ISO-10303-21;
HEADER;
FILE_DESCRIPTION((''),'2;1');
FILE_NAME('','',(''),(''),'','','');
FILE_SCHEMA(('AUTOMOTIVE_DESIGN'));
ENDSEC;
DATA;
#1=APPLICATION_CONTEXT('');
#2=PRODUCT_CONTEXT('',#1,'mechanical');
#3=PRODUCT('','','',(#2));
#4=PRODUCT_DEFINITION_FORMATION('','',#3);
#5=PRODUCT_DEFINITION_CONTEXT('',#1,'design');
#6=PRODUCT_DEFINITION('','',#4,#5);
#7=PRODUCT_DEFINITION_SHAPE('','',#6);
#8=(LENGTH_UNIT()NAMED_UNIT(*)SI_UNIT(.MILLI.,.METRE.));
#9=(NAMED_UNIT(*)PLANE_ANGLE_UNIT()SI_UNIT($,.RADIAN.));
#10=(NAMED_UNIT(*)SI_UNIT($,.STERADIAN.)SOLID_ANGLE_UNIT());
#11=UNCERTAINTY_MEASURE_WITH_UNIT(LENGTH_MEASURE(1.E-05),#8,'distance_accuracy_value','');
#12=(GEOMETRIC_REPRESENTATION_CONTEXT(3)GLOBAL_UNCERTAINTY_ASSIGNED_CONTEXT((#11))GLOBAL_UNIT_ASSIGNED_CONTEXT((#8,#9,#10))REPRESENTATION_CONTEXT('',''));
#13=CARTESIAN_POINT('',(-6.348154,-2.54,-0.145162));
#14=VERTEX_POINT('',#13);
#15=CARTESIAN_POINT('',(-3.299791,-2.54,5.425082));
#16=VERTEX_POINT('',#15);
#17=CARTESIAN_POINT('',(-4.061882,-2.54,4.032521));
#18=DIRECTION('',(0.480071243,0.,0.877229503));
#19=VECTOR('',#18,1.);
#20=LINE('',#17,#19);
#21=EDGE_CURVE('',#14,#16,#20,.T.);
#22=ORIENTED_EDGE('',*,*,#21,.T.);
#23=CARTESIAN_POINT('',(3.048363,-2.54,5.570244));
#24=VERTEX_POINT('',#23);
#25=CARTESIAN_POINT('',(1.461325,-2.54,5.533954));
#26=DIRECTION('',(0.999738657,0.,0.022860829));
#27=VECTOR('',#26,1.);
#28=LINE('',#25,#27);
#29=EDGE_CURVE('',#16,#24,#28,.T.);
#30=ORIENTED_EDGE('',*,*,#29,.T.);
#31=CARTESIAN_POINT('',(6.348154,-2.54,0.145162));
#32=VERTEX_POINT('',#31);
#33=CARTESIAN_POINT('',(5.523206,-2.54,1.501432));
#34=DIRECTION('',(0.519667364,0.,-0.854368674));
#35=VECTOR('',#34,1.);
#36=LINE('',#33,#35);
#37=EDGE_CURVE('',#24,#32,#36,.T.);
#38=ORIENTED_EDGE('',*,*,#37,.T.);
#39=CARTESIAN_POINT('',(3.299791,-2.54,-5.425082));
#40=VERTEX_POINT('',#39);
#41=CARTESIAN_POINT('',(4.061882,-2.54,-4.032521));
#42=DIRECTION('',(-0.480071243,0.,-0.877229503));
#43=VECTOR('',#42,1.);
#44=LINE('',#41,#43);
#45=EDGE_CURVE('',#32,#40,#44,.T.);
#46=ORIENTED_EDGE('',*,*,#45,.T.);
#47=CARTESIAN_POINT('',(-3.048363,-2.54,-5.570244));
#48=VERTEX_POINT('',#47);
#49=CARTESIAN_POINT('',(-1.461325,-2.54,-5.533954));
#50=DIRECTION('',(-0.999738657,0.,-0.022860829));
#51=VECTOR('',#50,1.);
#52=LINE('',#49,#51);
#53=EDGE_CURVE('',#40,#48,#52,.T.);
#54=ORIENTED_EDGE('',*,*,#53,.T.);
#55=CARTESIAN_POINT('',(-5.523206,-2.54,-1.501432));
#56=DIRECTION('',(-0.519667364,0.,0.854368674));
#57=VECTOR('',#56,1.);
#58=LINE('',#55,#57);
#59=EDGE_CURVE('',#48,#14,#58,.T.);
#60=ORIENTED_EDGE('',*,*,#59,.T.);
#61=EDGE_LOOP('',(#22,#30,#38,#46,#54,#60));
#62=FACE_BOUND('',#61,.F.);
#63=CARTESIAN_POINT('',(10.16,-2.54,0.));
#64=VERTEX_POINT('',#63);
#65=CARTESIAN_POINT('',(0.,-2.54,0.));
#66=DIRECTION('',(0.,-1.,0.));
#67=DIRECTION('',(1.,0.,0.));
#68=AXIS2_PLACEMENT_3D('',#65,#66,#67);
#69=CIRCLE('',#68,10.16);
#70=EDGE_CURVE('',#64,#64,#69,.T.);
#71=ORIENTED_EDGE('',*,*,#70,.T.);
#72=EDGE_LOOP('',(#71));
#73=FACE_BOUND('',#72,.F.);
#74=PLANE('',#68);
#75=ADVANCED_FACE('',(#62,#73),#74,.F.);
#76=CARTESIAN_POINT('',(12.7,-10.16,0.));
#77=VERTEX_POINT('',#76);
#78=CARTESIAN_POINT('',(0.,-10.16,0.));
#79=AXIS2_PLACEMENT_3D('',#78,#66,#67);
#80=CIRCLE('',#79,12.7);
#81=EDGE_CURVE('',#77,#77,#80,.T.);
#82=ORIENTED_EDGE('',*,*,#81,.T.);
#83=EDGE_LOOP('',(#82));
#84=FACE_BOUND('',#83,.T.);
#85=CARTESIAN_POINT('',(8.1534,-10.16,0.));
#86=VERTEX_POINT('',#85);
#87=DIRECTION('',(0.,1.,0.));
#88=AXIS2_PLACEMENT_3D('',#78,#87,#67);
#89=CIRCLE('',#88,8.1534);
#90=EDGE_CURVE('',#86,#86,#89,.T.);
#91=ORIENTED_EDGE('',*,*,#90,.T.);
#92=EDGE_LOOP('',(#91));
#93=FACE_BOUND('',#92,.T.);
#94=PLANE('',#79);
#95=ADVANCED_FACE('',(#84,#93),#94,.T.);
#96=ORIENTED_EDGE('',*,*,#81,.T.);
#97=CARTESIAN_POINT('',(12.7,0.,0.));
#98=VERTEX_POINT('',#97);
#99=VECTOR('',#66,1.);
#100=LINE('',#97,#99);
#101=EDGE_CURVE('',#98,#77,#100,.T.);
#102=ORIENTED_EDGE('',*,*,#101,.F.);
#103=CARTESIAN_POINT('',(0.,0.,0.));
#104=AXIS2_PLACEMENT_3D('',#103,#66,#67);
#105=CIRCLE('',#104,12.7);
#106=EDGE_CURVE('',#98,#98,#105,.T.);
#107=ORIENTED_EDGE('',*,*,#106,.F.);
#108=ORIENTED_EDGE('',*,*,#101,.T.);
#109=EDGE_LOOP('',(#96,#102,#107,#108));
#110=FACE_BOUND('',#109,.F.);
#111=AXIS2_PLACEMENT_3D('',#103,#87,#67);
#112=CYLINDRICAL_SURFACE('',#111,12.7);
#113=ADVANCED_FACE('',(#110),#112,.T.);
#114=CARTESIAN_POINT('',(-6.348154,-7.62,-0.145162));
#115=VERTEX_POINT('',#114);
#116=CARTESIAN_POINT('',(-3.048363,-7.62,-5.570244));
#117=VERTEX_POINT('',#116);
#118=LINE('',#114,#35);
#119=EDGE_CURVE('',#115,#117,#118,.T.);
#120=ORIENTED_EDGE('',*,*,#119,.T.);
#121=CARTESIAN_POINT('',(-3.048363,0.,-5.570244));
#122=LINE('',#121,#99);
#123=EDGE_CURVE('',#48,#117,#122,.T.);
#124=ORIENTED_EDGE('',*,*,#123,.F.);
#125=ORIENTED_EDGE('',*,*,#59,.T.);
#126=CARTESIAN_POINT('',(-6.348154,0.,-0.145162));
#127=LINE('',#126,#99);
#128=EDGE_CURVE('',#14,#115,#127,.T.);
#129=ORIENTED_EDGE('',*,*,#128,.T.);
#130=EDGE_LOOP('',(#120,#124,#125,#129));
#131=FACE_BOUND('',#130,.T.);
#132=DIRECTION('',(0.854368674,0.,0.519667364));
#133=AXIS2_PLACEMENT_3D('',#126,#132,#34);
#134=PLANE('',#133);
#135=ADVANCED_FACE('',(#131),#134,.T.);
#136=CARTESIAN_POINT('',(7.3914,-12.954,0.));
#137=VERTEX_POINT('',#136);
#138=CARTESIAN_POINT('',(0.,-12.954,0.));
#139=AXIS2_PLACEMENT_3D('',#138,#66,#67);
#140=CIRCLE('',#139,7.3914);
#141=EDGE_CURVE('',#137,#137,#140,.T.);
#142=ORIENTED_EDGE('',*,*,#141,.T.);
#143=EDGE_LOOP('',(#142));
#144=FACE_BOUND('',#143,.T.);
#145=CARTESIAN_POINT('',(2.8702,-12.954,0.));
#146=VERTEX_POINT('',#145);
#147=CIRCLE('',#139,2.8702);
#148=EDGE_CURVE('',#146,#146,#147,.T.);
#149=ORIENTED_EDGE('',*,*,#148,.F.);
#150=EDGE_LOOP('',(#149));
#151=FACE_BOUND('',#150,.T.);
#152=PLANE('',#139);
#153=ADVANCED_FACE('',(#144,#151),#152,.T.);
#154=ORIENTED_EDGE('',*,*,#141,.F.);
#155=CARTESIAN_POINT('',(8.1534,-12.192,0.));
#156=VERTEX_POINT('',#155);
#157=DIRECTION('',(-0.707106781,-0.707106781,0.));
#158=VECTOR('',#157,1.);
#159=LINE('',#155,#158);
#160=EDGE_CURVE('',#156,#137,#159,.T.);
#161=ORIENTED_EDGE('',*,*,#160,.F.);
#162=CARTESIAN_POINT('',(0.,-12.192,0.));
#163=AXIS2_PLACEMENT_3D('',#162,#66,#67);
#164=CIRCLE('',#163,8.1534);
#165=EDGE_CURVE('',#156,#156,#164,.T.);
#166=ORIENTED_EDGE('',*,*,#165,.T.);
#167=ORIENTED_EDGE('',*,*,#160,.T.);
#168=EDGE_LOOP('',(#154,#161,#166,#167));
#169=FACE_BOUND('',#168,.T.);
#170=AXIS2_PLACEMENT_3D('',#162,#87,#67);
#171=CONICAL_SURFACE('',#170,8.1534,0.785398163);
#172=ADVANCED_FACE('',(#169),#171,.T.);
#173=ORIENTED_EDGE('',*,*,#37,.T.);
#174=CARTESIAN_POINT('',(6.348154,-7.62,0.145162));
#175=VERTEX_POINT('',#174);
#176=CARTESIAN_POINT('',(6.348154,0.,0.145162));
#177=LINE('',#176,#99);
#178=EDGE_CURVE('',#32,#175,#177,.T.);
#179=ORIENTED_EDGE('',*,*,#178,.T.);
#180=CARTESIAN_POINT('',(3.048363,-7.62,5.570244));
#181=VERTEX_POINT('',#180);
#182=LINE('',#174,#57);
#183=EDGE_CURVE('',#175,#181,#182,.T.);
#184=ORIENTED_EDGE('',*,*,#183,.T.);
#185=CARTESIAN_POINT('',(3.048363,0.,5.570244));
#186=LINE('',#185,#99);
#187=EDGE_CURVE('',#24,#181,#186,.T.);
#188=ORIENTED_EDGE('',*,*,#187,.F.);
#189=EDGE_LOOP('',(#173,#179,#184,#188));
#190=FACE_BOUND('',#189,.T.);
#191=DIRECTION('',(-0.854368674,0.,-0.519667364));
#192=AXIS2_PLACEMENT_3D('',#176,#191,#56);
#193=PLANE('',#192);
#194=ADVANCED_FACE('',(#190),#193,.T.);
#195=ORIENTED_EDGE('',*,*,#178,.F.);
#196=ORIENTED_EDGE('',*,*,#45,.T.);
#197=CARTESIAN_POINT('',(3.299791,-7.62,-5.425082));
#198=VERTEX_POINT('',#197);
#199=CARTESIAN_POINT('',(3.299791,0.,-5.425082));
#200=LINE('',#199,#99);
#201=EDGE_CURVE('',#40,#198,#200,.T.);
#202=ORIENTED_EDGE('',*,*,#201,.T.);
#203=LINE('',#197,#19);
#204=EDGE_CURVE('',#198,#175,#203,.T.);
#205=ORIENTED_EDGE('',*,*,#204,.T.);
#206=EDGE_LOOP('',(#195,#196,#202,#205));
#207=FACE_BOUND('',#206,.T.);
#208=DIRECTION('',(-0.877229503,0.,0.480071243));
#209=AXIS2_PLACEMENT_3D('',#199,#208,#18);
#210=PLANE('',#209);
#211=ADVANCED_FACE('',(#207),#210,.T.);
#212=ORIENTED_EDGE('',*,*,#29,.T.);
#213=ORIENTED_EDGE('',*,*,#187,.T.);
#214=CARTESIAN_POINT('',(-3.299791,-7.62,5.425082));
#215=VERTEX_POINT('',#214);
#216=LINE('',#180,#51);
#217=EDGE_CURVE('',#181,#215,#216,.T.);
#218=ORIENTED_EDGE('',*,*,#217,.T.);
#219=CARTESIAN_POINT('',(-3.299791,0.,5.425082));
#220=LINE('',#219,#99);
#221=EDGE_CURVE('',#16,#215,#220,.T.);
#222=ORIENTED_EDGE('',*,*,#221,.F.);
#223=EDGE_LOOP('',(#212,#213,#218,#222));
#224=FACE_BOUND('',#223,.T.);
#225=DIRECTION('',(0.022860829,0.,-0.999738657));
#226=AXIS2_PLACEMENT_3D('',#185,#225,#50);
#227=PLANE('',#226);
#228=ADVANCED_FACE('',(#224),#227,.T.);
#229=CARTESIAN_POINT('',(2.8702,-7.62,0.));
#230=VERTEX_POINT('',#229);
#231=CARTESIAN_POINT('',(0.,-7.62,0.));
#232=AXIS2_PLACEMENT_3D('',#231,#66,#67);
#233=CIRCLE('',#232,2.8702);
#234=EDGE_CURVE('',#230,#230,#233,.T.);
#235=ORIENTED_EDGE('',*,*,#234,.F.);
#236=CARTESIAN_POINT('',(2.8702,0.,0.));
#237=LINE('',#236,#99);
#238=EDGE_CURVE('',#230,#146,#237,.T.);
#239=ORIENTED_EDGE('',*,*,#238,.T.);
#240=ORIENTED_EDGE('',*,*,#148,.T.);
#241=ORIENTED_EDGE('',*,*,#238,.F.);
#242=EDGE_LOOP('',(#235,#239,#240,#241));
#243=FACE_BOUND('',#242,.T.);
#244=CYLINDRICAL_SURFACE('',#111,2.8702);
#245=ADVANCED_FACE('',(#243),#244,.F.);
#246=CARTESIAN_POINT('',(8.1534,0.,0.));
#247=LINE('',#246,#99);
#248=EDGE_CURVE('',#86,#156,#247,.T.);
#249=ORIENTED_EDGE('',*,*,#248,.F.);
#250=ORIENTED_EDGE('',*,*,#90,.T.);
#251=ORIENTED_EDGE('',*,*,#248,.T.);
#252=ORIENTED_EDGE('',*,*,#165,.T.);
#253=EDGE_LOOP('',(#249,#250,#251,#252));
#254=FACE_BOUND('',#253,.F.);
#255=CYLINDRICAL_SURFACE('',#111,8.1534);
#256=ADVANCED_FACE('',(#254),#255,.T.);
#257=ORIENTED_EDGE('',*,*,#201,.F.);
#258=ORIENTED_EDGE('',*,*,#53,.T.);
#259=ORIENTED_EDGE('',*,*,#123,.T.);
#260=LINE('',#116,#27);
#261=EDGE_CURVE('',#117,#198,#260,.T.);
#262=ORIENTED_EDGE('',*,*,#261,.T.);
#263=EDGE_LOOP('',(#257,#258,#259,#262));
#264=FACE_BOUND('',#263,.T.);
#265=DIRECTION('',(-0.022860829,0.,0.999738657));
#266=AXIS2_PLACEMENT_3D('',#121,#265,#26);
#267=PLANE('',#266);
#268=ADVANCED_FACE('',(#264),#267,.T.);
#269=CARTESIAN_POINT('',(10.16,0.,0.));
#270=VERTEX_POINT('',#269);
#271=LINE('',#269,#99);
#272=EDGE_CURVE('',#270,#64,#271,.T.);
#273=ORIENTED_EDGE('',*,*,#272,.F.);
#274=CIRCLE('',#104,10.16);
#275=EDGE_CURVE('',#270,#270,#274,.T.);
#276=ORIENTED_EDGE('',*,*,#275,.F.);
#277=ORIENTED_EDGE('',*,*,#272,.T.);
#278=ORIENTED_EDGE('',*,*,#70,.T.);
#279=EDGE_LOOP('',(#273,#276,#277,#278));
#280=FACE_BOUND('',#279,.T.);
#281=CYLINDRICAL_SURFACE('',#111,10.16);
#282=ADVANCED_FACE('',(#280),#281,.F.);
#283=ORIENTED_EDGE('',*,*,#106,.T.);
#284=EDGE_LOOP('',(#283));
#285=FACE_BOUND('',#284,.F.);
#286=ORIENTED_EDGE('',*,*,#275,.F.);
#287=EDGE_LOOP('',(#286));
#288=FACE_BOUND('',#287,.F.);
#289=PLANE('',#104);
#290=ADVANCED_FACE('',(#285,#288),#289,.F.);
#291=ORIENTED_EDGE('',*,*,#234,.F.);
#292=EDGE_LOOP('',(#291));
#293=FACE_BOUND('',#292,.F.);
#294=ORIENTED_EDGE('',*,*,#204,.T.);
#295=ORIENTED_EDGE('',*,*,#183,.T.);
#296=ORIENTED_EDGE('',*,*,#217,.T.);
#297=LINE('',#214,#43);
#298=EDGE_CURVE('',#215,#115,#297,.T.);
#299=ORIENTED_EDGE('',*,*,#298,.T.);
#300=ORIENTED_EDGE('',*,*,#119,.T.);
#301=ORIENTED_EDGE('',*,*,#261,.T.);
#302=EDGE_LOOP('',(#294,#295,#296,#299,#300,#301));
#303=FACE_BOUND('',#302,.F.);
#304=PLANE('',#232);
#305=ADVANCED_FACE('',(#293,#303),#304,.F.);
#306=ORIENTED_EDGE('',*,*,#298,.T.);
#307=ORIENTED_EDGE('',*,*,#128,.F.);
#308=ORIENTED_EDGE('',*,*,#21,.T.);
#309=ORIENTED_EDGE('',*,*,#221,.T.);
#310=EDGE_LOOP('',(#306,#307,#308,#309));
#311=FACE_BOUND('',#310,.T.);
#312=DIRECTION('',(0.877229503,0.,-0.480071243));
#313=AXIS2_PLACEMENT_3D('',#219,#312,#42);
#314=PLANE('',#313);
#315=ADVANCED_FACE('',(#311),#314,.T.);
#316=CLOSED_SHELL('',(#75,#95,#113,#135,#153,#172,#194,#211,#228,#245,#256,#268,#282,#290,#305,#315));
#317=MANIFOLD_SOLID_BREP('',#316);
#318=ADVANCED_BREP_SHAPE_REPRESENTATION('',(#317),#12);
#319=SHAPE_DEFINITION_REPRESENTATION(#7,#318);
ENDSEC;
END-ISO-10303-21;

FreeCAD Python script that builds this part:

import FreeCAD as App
import Part
import Sketcher

V = App.Vector
Q = App.Units.Quantity


def edges_at(feature, points):
    """Names of the edges that pass closest to the given points."""
    edges = feature.Shape.Edges
    near = lambda p: min(range(len(edges)), key=lambda i: edges[i].distToShape(Part.Vertex(*p))[0])
    return sorted({f"Edge{near(p) + 1}" for p in points})


def add_polygon(sketch, points):
    """Adds a closed chain of lines whose ends are joined by coincident constraints."""
    first, n = sketch.GeometryCount, len(points)
    for a, b in zip(points, points[1:] + points[:1]):
        sketch.addGeometry(Part.LineSegment(App.Vector(*a, 0), App.Vector(*b, 0)), False)
    for i in range(n):
        sketch.addConstraint(Sketcher.Constraint("Coincident", first + i, 2, first + (i + 1) % n, 1))

doc = App.newDocument("Part")
body = doc.addObject("PartDesign::Body", "Body")

sketch1 = body.newObject("Sketcher::SketchObject", "Sketch")
sketch1.AttachmentSupport = (doc.getObject("XZ_Plane"), [""])
sketch1.MapMode = "FlatFace"
sketch1.addGeometry([
    Part.Circle(V(0, 0, 0), V(0, 0, 1), 12.7),
    Part.Circle(V(0, 0, 0), V(0, 0, 1), 2.9),
], False)
sketch1.addConstraint([
    Sketcher.Constraint("Coincident", 0, 3, -1, 1),
    Sketcher.Constraint("Coincident", 1, 3, -1, 1),
    Sketcher.Constraint("Diameter", 0, Q("1 in")),
    Sketcher.Constraint("Diameter", 1, Q("0.226 in")),
])
pad1 = body.newObject("PartDesign::Pad", "Pad")
pad1.Profile = sketch1
pad1.Length = Q("0.4 in")

sketch2 = body.newObject("Sketcher::SketchObject", "Sketch001")
sketch2.AttachmentSupport = (doc.getObject("XZ_Plane"), [""])
sketch2.MapMode = "FlatFace"
sketch2.addGeometry([
    Part.Circle(V(0, 0, 0), V(0, 0, 1), 8.2),
    Part.Circle(V(0, 0, 0), V(0, 0, 1), 2.9),
], False)
sketch2.addConstraint([
    Sketcher.Constraint("Coincident", 0, 3, -1, 1),
    Sketcher.Constraint("Coincident", 1, 3, -1, 1),
    Sketcher.Constraint("Diameter", 0, Q("0.642 in")),
    Sketcher.Constraint("Diameter", 1, Q("0.226 in")),
])
pad2 = body.newObject("PartDesign::Pad", "Pad001")
pad2.Profile = sketch2
pad2.Length = Q("0.51 in")

sketch3 = body.newObject("Sketcher::SketchObject", "Sketch002")
sketch3.AttachmentSupport = (doc.getObject("XZ_Plane"), [""])
sketch3.MapMode = "FlatFace"
sketch3.addGeometry([
    Part.Circle(V(0, 0, 0), V(0, 0, 1), 10.2),
    Part.Circle(V(0, 0, 0), V(0, 0, 1), 2.9),
], False)
sketch3.addConstraint([
    Sketcher.Constraint("Coincident", 0, 3, -1, 1),
    Sketcher.Constraint("Coincident", 1, 3, -1, 1),
    Sketcher.Constraint("Diameter", 0, Q("0.8 in")),
    Sketcher.Constraint("Diameter", 1, Q("0.226 in")),
])
pocket1 = body.newObject("PartDesign::Pocket", "Pocket")
pocket1.Profile = sketch3
pocket1.Length = Q("0.1 in")
pocket1.Reversed = True

sketch4 = body.newObject("Sketcher::SketchObject", "Sketch003")
sketch4.AttachmentSupport = (doc.getObject("XZ_Plane"), [""])
sketch4.MapMode = "FlatFace"
add_polygon(sketch4, [(6.3, 0.1), (3, 5.6), (-3.3, 5.4), (-6.3, -0.1), (-3, -5.6), (3.3, -5.4)])
sketch4.addGeometry(Part.Circle(V(0, 0, 0), V(0, 0, 1), 2.9), False)
sketch4.addConstraint([
    Sketcher.Constraint("Coincident", 6, 3, -1, 1),
    Sketcher.Constraint("Symmetric", 0, 2, 3, 2, -1, 1),
    Sketcher.Constraint("Symmetric", 1, 2, 4, 2, -1, 1),
    Sketcher.Constraint("Symmetric", 2, 2, 5, 2, -1, 1),
    Sketcher.Constraint("Equal", 0, 1),
    Sketcher.Constraint("Equal", 1, 2),
    Sketcher.Constraint("Diameter", 6, Q("0.226 in")),
    Sketcher.Constraint("DistanceX", 1, 2, -1, 1, Q("3.299791 mm")),
    Sketcher.Constraint("DistanceY", -1, 1, 1, 2, Q("5.425082 mm")),
    Sketcher.Constraint("DistanceX", 2, 2, 3, 2, Q("3.299791 mm")),
    Sketcher.Constraint("DistanceY", 3, 2, 2, 2, Q("5.425082 mm")),
])
pocket2 = body.newObject("PartDesign::Pocket", "Pocket001")
pocket2.Profile = sketch4
pocket2.Length = Q("0.3 in")
pocket2.Reversed = True
doc.recompute()

chamfer = body.newObject("PartDesign::Chamfer", "Chamfer")
chamfer.Base = (pocket2, edges_at(pocket2, [(-8.153, -12.954, 0)]))
chamfer.Size = Q("0.03 in")

doc.recompute()
